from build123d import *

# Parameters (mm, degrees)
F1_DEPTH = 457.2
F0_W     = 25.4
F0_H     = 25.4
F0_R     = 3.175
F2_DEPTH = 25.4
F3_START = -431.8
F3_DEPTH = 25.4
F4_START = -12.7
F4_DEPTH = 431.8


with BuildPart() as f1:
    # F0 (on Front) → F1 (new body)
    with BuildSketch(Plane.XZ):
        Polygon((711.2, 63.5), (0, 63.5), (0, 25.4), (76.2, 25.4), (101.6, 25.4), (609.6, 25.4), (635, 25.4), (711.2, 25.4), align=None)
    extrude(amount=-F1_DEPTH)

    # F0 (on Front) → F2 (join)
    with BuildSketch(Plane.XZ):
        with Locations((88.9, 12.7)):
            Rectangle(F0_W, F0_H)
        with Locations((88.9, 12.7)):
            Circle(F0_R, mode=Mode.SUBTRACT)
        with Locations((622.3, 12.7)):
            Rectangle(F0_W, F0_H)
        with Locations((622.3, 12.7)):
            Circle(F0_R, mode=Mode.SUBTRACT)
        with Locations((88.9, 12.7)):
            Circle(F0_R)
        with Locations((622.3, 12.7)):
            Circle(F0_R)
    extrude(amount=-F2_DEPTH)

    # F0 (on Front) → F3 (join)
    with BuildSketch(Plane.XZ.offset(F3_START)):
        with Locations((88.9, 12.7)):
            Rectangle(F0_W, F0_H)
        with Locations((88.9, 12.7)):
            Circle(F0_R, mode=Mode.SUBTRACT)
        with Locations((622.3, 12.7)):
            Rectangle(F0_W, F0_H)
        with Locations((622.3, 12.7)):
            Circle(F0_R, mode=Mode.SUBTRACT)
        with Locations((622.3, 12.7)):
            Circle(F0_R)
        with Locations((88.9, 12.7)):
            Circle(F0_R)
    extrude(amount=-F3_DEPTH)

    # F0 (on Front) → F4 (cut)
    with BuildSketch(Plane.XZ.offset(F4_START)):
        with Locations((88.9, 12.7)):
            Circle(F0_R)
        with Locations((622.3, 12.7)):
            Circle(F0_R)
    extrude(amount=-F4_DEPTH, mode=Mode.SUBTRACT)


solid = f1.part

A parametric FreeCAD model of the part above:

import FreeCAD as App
import Part
import Sketcher

V = App.Vector
Q = App.Units.Quantity

doc = App.newDocument("Part")
params = doc.addObject("Spreadsheet::Sheet", "Params")
for row, (alias, value) in enumerate([
    ("sketch1_width", "28 in"),
    ("sketch1_height", "1.5 in"),
    ("pad1_length", "18 in"),
    ("sketch2_width", "1 in"),
    ("pad2_length", "1 in"),
    ("sketch3_width", "1 in"),
    ("pad3_length", "1 in"),
    ("sketch4_diameter", "0.25 in"),
    ("pocket1_length", "17 in"),
], start=1):
    params.set(f"A{row}", alias)
    params.set(f"B{row}", "=" + value)
    params.setAlias(f"B{row}", alias)

body = doc.addObject("PartDesign::Body", "Body")

# Sketch on XZ plane
sketch1 = body.newObject("Sketcher::SketchObject", "Sketch")
sketch1.AttachmentSupport = (doc.getObject("XZ_Plane"), [""])
sketch1.MapMode = "FlatFace"
sketch1.addGeometry([
    Part.LineSegment(V(711, 64, 0), V(0, 64, 0)),
    Part.LineSegment(V(0, 64, 0), V(0, 25, 0)),
    Part.LineSegment(V(0, 25, 0), V(711, 25, 0)),
    Part.LineSegment(V(711, 25, 0), V(711, 64, 0)),
], False)
sketch1.addConstraint([
    Sketcher.Constraint("Coincident", 0, 2, 1, 1),
    Sketcher.Constraint("Coincident", 1, 2, 2, 1),
    Sketcher.Constraint("Coincident", 2, 2, 3, 1),
    Sketcher.Constraint("Coincident", 3, 2, 0, 1),
    Sketcher.Constraint("Horizontal", 0),
    Sketcher.Constraint("Vertical", 1),
    Sketcher.Constraint("Horizontal", 2),
    Sketcher.Constraint("Vertical", 3),
    Sketcher.Constraint("PointOnObject", 0, 2, -2),
    Sketcher.Constraint("DistanceX", 0, 2, 0, 1, Q("28 in")),
    Sketcher.Constraint("DistanceY", 1, 2, 1, 1, Q("1.5 in")),
    Sketcher.Constraint("DistanceY", -1, 1, 1, 2, Q("1 in")),
])
sketch1.setExpression("Constraints[9]", "Params.sketch1_width")
sketch1.setExpression("Constraints[10]", "Params.sketch1_height")
pad1 = body.newObject("PartDesign::Pad", "Pad")
pad1.Profile = sketch1
pad1.setExpression("Length", "Params.pad1_length")
pad1.Reversed = True

# Sketch on XZ plane
sketch2 = body.newObject("Sketcher::SketchObject", "Sketch001")
sketch2.AttachmentSupport = (doc.getObject("XZ_Plane"), [""])
sketch2.MapMode = "FlatFace"
sketch2.addGeometry([
    Part.LineSegment(V(76, 25, 0), V(76, 0, 0)),  # 0
    Part.LineSegment(V(76, 0, 0), V(102, 0, 0)),  # 1
    Part.LineSegment(V(102, 0, 0), V(102, 25, 0)),  # 2
    Part.LineSegment(V(102, 25, 0), V(76, 25, 0)),  # 3
    Part.LineSegment(V(610, 25, 0), V(610, 0, 0)),  # 4
    Part.LineSegment(V(610, 0, 0), V(635, 0, 0)),  # 5
    Part.LineSegment(V(635, 0, 0), V(635, 25, 0)),  # 6
    Part.LineSegment(V(635, 25, 0), V(610, 25, 0)),  # 7
], False)
sketch2.addConstraint([
    Sketcher.Constraint("Coincident", 0, 2, 1, 1),
    Sketcher.Constraint("Coincident", 1, 2, 2, 1),
    Sketcher.Constraint("Coincident", 2, 2, 3, 1),
    Sketcher.Constraint("Coincident", 3, 2, 0, 1),
    Sketcher.Constraint("Coincident", 4, 2, 5, 1),
    Sketcher.Constraint("Coincident", 5, 2, 6, 1),
    Sketcher.Constraint("Coincident", 6, 2, 7, 1),
    Sketcher.Constraint("Coincident", 7, 2, 4, 1),
    Sketcher.Constraint("Vertical", 0),
    Sketcher.Constraint("Horizontal", 1),
    Sketcher.Constraint("Vertical", 2),
    Sketcher.Constraint("Horizontal", 3),
    Sketcher.Constraint("Vertical", 4),
    Sketcher.Constraint("Horizontal", 5),
    Sketcher.Constraint("Vertical", 6),
    Sketcher.Constraint("Horizontal", 7),
    Sketcher.Constraint("PointOnObject", 0, 2, -1),
    Sketcher.Constraint("PointOnObject", 4, 2, -1),
    Sketcher.Constraint("Horizontal", 3, 2, 6, 2),
    Sketcher.Constraint("Equal", 3, 5),
    Sketcher.Constraint("Equal", 7, 0),
    Sketcher.Constraint("DistanceX", 1, 1, 1, 2, Q("1 in")),
    Sketcher.Constraint("DistanceX", -1, 1, 0, 2, Q("3 in")),
    Sketcher.Constraint("DistanceX", -1, 1, 4, 2, Q("24 in")),
])
sketch2.setExpression("Constraints[21]", "Params.sketch2_width")
pad2 = body.newObject("PartDesign::Pad", "Pad001")
pad2.Profile = sketch2
pad2.setExpression("Length", "Params.pad2_length")
pad2.Reversed = True

# Sketch on XZ plane
sketch3 = body.newObject("Sketcher::SketchObject", "Sketch002")
sketch3.AttachmentSupport = (doc.getObject("XZ_Plane"), [""])
sketch3.MapMode = "FlatFace"
sketch3.AttachmentOffset = App.Placement(V(0, 0, -17 * 25.4), App.Rotation())
sketch3.addGeometry([
    Part.LineSegment(V(76, 25, 0), V(76, 0, 0)),  # 0
    Part.LineSegment(V(76, 0, 0), V(102, 0, 0)),  # 1
    Part.LineSegment(V(102, 0, 0), V(102, 25, 0)),  # 2
    Part.LineSegment(V(102, 25, 0), V(76, 25, 0)),  # 3
    Part.LineSegment(V(610, 25, 0), V(610, 0, 0)),  # 4
    Part.LineSegment(V(610, 0, 0), V(635, 0, 0)),  # 5
    Part.LineSegment(V(635, 0, 0), V(635, 25, 0)),  # 6
    Part.LineSegment(V(635, 25, 0), V(610, 25, 0)),  # 7
], False)
sketch3.addConstraint([
    Sketcher.Constraint("Coincident", 0, 2, 1, 1),
    Sketcher.Constraint("Coincident", 1, 2, 2, 1),
    Sketcher.Constraint("Coincident", 2, 2, 3, 1),
    Sketcher.Constraint("Coincident", 3, 2, 0, 1),
    Sketcher.Constraint("Coincident", 4, 2, 5, 1),
    Sketcher.Constraint("Coincident", 5, 2, 6, 1),
    Sketcher.Constraint("Coincident", 6, 2, 7, 1),
    Sketcher.Constraint("Coincident", 7, 2, 4, 1),
    Sketcher.Constraint("Vertical", 0),
    Sketcher.Constraint("Horizontal", 1),
    Sketcher.Constraint("Vertical", 2),
    Sketcher.Constraint("Horizontal", 3),
    Sketcher.Constraint("Vertical", 4),
    Sketcher.Constraint("Horizontal", 5),
    Sketcher.Constraint("Vertical", 6),
    Sketcher.Constraint("Horizontal", 7),
    Sketcher.Constraint("PointOnObject", 0, 2, -1),
    Sketcher.Constraint("PointOnObject", 4, 2, -1),
    Sketcher.Constraint("Horizontal", 3, 2, 6, 2),
    Sketcher.Constraint("Equal", 3, 5),
    Sketcher.Constraint("Equal", 7, 0),
    Sketcher.Constraint("DistanceX", 1, 1, 1, 2, Q("1 in")),
    Sketcher.Constraint("DistanceX", -1, 1, 0, 2, Q("3 in")),
    Sketcher.Constraint("DistanceX", -1, 1, 4, 2, Q("24 in")),
])
sketch3.setExpression("Constraints[21]", "Params.sketch3_width")
pad3 = body.newObject("PartDesign::Pad", "Pad002")
pad3.Profile = sketch3
pad3.setExpression("Length", "Params.pad3_length")
pad3.Reversed = True

# Sketch on XZ plane
sketch4 = body.newObject("Sketcher::SketchObject", "Sketch003")
sketch4.AttachmentSupport = (doc.getObject("XZ_Plane"), [""])
sketch4.MapMode = "FlatFace"
sketch4.AttachmentOffset = App.Placement(V(0, 0, -0.5 * 25.4), App.Rotation())
sketch4.addGeometry([
    Part.Circle(V(88.9, 12.7, 0), V(0, 0, 1), 3.2),
    Part.Circle(V(622.3, 12.7, 0), V(0, 0, 1), 3.2),
], False)
sketch4.addConstraint([
    Sketcher.Constraint("Equal", 0, 1),
    Sketcher.Constraint("Horizontal", 0, 3, 1, 3),
    Sketcher.Constraint("Diameter", 0, Q("0.25 in")),
    Sketcher.Constraint("DistanceX", 0, 3, 1, 3, Q("21 in")),
    Sketcher.Constraint("DistanceX", -1, 1, 0, 3, Q("3.5 in")),
    Sketcher.Constraint("DistanceY", -1, 1, 0, 3, Q("0.5 in")),
])
sketch4.setExpression("Constraints[2]", "Params.sketch4_diameter")
pocket1 = body.newObject("PartDesign::Pocket", "Pocket")
pocket1.Profile = sketch4
pocket1.setExpression("Length", "Params.pocket1_length")

doc.recompute()
